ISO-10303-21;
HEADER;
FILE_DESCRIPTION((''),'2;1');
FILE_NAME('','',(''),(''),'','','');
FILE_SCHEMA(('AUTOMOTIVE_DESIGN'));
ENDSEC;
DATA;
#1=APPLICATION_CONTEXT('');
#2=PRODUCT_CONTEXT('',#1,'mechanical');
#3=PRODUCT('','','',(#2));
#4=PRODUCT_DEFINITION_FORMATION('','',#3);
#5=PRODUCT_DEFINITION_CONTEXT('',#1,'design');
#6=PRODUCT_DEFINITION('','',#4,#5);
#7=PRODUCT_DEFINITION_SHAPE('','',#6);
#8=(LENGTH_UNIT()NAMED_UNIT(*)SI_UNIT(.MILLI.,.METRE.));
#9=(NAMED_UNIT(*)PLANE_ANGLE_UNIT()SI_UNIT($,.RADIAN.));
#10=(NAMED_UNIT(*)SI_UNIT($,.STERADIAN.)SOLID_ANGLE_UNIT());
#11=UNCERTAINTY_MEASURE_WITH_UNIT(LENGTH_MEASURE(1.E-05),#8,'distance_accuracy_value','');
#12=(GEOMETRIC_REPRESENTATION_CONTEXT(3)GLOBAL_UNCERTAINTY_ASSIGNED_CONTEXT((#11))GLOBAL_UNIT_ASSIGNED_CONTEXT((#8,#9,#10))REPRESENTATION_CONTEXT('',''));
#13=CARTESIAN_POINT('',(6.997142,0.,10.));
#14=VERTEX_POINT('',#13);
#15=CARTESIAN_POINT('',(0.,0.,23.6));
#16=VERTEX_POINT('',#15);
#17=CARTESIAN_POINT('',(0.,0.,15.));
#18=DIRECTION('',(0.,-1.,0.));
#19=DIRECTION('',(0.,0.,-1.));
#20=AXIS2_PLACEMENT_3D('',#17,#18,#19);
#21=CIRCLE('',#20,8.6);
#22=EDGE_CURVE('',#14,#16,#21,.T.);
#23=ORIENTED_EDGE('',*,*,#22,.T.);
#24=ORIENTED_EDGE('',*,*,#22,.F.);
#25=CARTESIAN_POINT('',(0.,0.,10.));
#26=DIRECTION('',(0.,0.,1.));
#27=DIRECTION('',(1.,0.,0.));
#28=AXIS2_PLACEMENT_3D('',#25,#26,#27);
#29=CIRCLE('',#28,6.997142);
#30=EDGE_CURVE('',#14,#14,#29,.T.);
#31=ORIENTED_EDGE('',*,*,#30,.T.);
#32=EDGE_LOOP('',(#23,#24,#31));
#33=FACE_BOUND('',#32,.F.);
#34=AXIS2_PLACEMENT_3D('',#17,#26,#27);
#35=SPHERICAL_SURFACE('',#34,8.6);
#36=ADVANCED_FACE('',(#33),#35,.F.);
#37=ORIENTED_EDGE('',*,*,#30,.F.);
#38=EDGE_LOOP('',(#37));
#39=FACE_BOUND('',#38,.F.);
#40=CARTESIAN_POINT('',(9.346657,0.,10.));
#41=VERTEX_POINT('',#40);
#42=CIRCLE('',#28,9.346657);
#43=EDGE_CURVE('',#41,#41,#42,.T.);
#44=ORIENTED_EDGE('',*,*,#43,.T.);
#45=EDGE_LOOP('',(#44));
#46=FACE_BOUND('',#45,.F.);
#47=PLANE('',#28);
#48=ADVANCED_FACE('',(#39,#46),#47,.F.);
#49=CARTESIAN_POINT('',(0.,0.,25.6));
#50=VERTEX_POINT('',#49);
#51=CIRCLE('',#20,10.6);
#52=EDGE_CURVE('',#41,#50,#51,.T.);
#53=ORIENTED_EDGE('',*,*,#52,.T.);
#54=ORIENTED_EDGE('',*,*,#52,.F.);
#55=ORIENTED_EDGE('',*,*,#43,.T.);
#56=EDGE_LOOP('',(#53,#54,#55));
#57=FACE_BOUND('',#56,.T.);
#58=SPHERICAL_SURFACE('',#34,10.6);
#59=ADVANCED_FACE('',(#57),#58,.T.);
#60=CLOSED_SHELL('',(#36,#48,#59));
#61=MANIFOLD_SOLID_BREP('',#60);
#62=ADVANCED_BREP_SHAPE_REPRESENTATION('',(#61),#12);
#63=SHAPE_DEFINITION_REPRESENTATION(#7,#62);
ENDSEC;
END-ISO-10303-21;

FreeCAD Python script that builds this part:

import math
import FreeCAD as App
import Part
import Sketcher

V = App.Vector
Q = App.Units.Quantity


def add_polygon(sketch, points):
    """Adds a closed chain of lines whose ends are joined by coincident constraints."""
    first, n = sketch.GeometryCount, len(points)
    for a, b in zip(points, points[1:] + points[:1]):
        sketch.addGeometry(Part.LineSegment(App.Vector(*a, 0), App.Vector(*b, 0)), False)
    for i in range(n):
        sketch.addConstraint(Sketcher.Constraint("Coincident", first + i, 2, first + (i + 1) % n, 1))

doc = App.newDocument("Part")
body = doc.addObject("PartDesign::Body", "Body")

sketch1 = doc.addObject("Sketcher::SketchObject", "Sketch")
body.addObject(sketch1)
sketch1.AttachmentSupport = (doc.XY_Plane, [""])
sketch1.MapMode = "FlatFace"
sketch1.AttachmentOffset = App.Placement(V(0, 0, 1), App.Rotation())
add_polygon(sketch1, [(-10, 10), (-10, -10), (10, -10), (10, 10)])
sketch1.addConstraint(Sketcher.Constraint("Vertical", 0))
sketch1.addConstraint(Sketcher.Constraint("Horizontal", 1))
sketch1.addConstraint(Sketcher.Constraint("Vertical", 2))
sketch1.addConstraint(Sketcher.Constraint("Horizontal", 3))
sketch1.addConstraint(Sketcher.Constraint("Symmetric", 0, 2, 2, 2, -1, 1))
sketch1.addConstraint(Sketcher.Constraint("Equal", 3, 0))
sketch1.addConstraint(Sketcher.Constraint("DistanceX", 1, 1, 1, 2, Q("20 mm")))
pad1 = doc.addObject("PartDesign::Pad", "Pad")
body.addObject(pad1)
pad1.Profile = sketch1
pad1.Length = 9
body2 = doc.addObject("PartDesign::Body", "Body001")

sketch2 = doc.addObject("Sketcher::SketchObject", "Sketch001")
body2.addObject(sketch2)
sketch2.AttachmentSupport = (doc.getObject("XZ_Plane001"), [""])
sketch2.MapMode = "FlatFace"
sketch2.addGeometry(Part.ArcOfCircle(Part.Circle(V(0, 15, 0), V(0, 0, 1), 9), math.radians(-90), math.radians(90)), False)
sketch2.addGeometry(Part.LineSegment(V(0, 24, 0), V(0, 6, 0)), False)
sketch2.addConstraint(Sketcher.Constraint("Coincident", 0, 1, 1, 2))
sketch2.addConstraint(Sketcher.Constraint("Coincident", 1, 1, 0, 2))
sketch2.addConstraint(Sketcher.Constraint("Vertical", 1))
sketch2.addConstraint(Sketcher.Constraint("PointOnObject", 0, 3, -2))
sketch2.addConstraint(Sketcher.Constraint("PointOnObject", 0, 1, -2))
sketch2.addConstraint(Sketcher.Constraint("Radius", 0, Q("8.6 mm")))
sketch2.addConstraint(Sketcher.Constraint("DistanceY", -1, 1, 0, 3, Q("15 mm")))
revolution = doc.addObject("PartDesign::Revolution", "Revolution")
body2.addObject(revolution)
revolution.Profile = sketch2
revolution.ReferenceAxis = (sketch2, ["V_Axis"])
revolution.Angle = 360
body3 = doc.addObject("PartDesign::Body", "Body002")

sketch3 = doc.addObject("Sketcher::SketchObject", "Sketch002")
body3.addObject(sketch3)
sketch3.AttachmentSupport = (doc.getObject("XZ_Plane002"), [""])
sketch3.MapMode = "FlatFace"
sketch3.addGeometry(Part.ArcOfCircle(Part.Circle(V(0, 15, 0), V(0, 0, 1), 11), math.radians(-90), math.radians(90)), False)
sketch3.addGeometry(Part.LineSegment(V(0, 26, 0), V(0, 4, 0)), False)
sketch3.addConstraint(Sketcher.Constraint("Coincident", 0, 1, 1, 2))
sketch3.addConstraint(Sketcher.Constraint("Coincident", 1, 1, 0, 2))
sketch3.addConstraint(Sketcher.Constraint("Vertical", 1))
sketch3.addConstraint(Sketcher.Constraint("PointOnObject", 0, 3, -2))
sketch3.addConstraint(Sketcher.Constraint("PointOnObject", 0, 1, -2))
sketch3.addConstraint(Sketcher.Constraint("Radius", 0, Q("10.6 mm")))
sketch3.addConstraint(Sketcher.Constraint("DistanceY", -1, 1, 0, 3, Q("15 mm")))
revolution2 = doc.addObject("PartDesign::Revolution", "Revolution001")
body3.addObject(revolution2)
revolution2.Profile = sketch3
revolution2.ReferenceAxis = (sketch3, ["V_Axis"])
revolution2.Angle = 360
doc.recompute()

boolean = doc.addObject("PartDesign::Boolean", "Boolean")
body3.addObject(boolean)
boolean.Type = "Cut"
boolean.addObjects([body2])
doc.recompute()

boolean2 = doc.addObject("PartDesign::Boolean", "Boolean001")
body3.addObject(boolean2)
boolean2.Type = "Cut"
boolean2.addObjects([body])

doc.recompute()
